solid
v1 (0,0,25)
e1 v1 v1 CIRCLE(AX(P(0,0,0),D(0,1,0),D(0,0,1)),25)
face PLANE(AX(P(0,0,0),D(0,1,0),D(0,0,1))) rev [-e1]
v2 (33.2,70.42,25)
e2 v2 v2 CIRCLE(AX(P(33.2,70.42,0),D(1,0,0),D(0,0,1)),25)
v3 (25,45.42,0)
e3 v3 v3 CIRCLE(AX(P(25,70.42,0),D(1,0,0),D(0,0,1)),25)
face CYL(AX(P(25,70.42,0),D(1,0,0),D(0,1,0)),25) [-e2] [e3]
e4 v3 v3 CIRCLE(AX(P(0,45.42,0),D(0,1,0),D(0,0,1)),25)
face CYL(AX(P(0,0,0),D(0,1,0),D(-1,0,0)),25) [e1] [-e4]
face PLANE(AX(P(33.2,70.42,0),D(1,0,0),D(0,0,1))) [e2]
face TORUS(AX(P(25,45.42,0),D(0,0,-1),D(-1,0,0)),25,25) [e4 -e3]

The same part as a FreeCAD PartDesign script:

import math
import FreeCAD as App
import Part
import Sketcher

doc = App.newDocument("Part")
body = doc.addObject("PartDesign::Body", "Body")

# Sketch on XZ plane
sketch1 = doc.addObject("Sketcher::SketchObject", "Sketch")
body.addObject(sketch1)
sketch1.AttachmentSupport = (doc.XZ_Plane, [""])
sketch1.MapMode = "FlatFace"
sketch1.addGeometry(Part.Circle(App.Vector(0, 0, 0), App.Vector(0, 0, 1), 25), False)
sketch1.addConstraint([
    Sketcher.Constraint("Coincident", 0, 3, -1, 1),
    Sketcher.Constraint("Diameter", 0, 50.0),
])

# Sketch on XY plane
sketch2 = doc.addObject("Sketcher::SketchObject", "Sketch001")
body.addObject(sketch2)
sketch2.AttachmentSupport = (doc.XY_Plane, [""])
sketch2.MapMode = "FlatFace"
sketch2.addGeometry([
    Part.LineSegment(App.Vector(0, 0, 0), App.Vector(0, 45, 0)),
    Part.ArcOfCircle(Part.Circle(App.Vector(25, 45, 0), App.Vector(0, 0, 1), 25), math.radians(90), math.radians(180)),
    Part.LineSegment(App.Vector(25, 70, 0), App.Vector(33, 70, 0)),
], False)
sketch2.addConstraint([
    Sketcher.Constraint("Tangent", 0, 2, 1, 2),
    Sketcher.Constraint("Tangent", 1, 1, 2, 1),
    Sketcher.Constraint("Vertical", 0),
    Sketcher.Constraint("Horizontal", 2),
    Sketcher.Constraint("Coincident", 0, 1, -1, 1),
    Sketcher.Constraint("Radius", 1, 25.0),
    Sketcher.Constraint("DistanceX", 2, 1, 2, 2, 8.2),
    Sketcher.Constraint("DistanceY", 0, 1, 0, 2, 45.42),
])
doc.recompute()

additivepipe = doc.addObject("PartDesign::AdditivePipe", "AdditivePipe")
body.addObject(additivepipe)
additivepipe.Profile = sketch1
additivepipe.Spine = (sketch2, ["Edge1", "Edge2", "Edge3"])

doc.recompute()
